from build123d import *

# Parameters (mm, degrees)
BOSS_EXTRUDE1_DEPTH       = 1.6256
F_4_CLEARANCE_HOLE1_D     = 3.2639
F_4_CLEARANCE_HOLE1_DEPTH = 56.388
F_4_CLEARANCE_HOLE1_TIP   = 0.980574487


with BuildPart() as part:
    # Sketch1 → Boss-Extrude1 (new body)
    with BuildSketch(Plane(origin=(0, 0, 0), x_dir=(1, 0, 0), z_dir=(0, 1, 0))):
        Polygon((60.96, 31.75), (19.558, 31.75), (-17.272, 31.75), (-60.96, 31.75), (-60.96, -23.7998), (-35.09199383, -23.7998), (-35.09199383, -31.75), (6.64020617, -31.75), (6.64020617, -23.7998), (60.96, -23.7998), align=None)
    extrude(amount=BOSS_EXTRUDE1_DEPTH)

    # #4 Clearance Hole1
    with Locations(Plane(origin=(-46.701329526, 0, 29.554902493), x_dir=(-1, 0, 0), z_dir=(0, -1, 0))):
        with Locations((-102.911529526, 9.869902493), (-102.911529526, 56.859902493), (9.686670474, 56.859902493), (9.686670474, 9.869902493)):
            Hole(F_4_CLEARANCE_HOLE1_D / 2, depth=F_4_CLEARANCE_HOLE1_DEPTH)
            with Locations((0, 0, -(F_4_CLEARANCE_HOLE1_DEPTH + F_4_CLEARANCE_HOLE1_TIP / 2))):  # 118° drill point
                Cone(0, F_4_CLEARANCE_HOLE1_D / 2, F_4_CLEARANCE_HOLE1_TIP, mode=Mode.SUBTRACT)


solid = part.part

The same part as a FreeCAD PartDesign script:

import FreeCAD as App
import Part
import Sketcher

V = App.Vector
Q = App.Units.Quantity

doc = App.newDocument("Part")
body = doc.addObject("PartDesign::Body", "Body")

# Sketch on XZ plane
sketch1 = doc.addObject("Sketcher::SketchObject", "Sketch")
body.addObject(sketch1)
sketch1.AttachmentSupport = (doc.XZ_Plane, [""])
sketch1.MapMode = "FlatFace"
sketch1.addGeometry([
    Part.LineSegment(V(60.96, -31.75, 0), V(-60.96, -31.75, 0)),  # 0
    Part.LineSegment(V(-60.96, -31.75, 0), V(-60.96, 23.7998, 0)),  # 1
    Part.LineSegment(V(-60.96, 23.7998, 0), V(-35.091994, 23.7998, 0)),  # 2
    Part.LineSegment(V(-35.091994, 23.7998, 0), V(-35.091994, 31.75, 0)),  # 3
    Part.LineSegment(V(-35.091994, 31.75, 0), V(6.640206, 31.75, 0)),  # 4
    Part.LineSegment(V(6.640206, 31.75, 0), V(6.640206, 23.7998, 0)),  # 5
    Part.LineSegment(V(6.640206, 23.7998, 0), V(60.96, 23.7998, 0)),  # 6
    Part.LineSegment(V(60.96, 23.7998, 0), V(60.96, -31.75, 0)),  # 7
], False)
sketch1.addConstraint([
    Sketcher.Constraint("Coincident", 0, 2, 1, 1),
    Sketcher.Constraint("Coincident", 1, 2, 2, 1),
    Sketcher.Constraint("Coincident", 2, 2, 3, 1),
    Sketcher.Constraint("Coincident", 3, 2, 4, 1),
    Sketcher.Constraint("Coincident", 4, 2, 5, 1),
    Sketcher.Constraint("Coincident", 5, 2, 6, 1),
    Sketcher.Constraint("Coincident", 6, 2, 7, 1),
    Sketcher.Constraint("Coincident", 7, 2, 0, 1),
    Sketcher.Constraint("Horizontal", 0),
    Sketcher.Constraint("Vertical", 1),
    Sketcher.Constraint("Horizontal", 2),
    Sketcher.Constraint("Vertical", 3),
    Sketcher.Constraint("Horizontal", 4),
    Sketcher.Constraint("Vertical", 5),
    Sketcher.Constraint("Horizontal", 6),
    Sketcher.Constraint("Vertical", 7),
    Sketcher.Constraint("Symmetric", 1, 2, 6, 2, -2),
    Sketcher.Constraint("DistanceX", 0, 2, 0, 1, Q("4.8 in")),
    Sketcher.Constraint("DistanceY", 0, 2, 3, 2, Q("2.5 in")),
    Sketcher.Constraint("DistanceX", 4, 1, 4, 2, Q("1.643 in")),
    Sketcher.Constraint("DistanceY", 1, 1, 1, 2, Q("2.187 in")),
    Sketcher.Constraint("DistanceY", 0, 2, -1, 1, Q("1.25 in")),
    Sketcher.Constraint("DistanceX", 2, 1, 2, 2, 25.868006),
])
pad1 = doc.addObject("PartDesign::Pad", "Pad")
body.addObject(pad1)
pad1.Profile = sketch1
pad1.Length = Q("0.064 in")
pad1.Reversed = True

# Sketch on XZ plane
sketch2 = doc.addObject("Sketcher::SketchObject", "Sketch001")
body.addObject(sketch2)
sketch2.AttachmentSupport = (doc.XZ_Plane, [""])
sketch2.MapMode = "FlatFace"
sketch2.addGeometry([
    Part.Circle(V(56.2102, 19.685, 0), V(0, 0, 1), 1.63195),
    Part.Circle(V(56.2102, -27.305, 0), V(0, 0, 1), 1.63195),
    Part.Circle(V(-56.388, -27.305, 0), V(0, 0, 1), 1.63195),
    Part.Circle(V(-56.388, 19.685, 0), V(0, 0, 1), 1.63195),
], False)
sketch2.addConstraint([
    Sketcher.Constraint("Equal", 0, 1),
    Sketcher.Constraint("Equal", 1, 2),
    Sketcher.Constraint("Equal", 2, 3),
    Sketcher.Constraint("Horizontal", 1, 3, 2, 3),
    Sketcher.Constraint("Horizontal", 0, 3, 3, 3),
    Sketcher.Constraint("Vertical", 0, 3, 1, 3),
    Sketcher.Constraint("Vertical", 2, 3, 3, 3),
    Sketcher.Constraint("Diameter", 0, Q("0.1285 in")),
    Sketcher.Constraint("DistanceX", 2, 3, -1, 1, Q("2.22 in")),
    Sketcher.Constraint("DistanceY", 1, 3, 0, 3, Q("1.85 in")),
    Sketcher.Constraint("DistanceX", -1, 1, 0, 3, Q("2.213 in")),
    Sketcher.Constraint("DistanceY", -1, 1, 0, 3, Q("0.775 in")),
])
doc.recompute()
hole = doc.addObject("PartDesign::Hole", "Hole")
body.addObject(hole)
hole.Profile = sketch2
hole.ThreadType = "None"
hole.Diameter = Q("0.1285 in")
hole.DepthType = "Dimension"
hole.Depth = Q("2.22 in")
hole.DrillPoint = "Angled"
hole.DrillPointAngle = 118

doc.recompute()
